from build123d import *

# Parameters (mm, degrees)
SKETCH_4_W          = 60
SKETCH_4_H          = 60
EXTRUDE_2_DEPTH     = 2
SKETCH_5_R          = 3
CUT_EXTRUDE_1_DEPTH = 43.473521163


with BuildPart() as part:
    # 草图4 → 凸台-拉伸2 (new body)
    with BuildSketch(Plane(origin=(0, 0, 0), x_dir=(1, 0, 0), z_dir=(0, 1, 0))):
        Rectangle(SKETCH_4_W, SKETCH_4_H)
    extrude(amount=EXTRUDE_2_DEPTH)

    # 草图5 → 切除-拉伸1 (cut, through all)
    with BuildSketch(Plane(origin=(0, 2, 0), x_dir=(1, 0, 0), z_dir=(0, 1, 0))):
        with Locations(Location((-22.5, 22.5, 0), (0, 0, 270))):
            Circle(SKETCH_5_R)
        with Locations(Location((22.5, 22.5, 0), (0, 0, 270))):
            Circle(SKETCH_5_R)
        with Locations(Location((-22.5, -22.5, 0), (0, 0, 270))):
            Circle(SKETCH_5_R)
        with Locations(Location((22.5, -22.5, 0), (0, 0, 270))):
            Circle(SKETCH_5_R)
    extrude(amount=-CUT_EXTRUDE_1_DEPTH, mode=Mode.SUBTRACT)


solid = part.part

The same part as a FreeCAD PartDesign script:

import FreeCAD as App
import Part
import Sketcher
from FreeCAD import Vector
Q = App.Units.Quantity


def add_polygon(sketch, points):
    """Adds a closed chain of lines whose ends are joined by coincident constraints."""
    first, n = sketch.GeometryCount, len(points)
    for a, b in zip(points, points[1:] + points[:1]):
        sketch.addGeometry(Part.LineSegment(App.Vector(*a, 0), App.Vector(*b, 0)), False)
    for i in range(n):
        sketch.addConstraint(Sketcher.Constraint("Coincident", first + i, 2, first + (i + 1) % n, 1))

doc = App.newDocument("Part")
body = doc.addObject("PartDesign::Body", "Body")

# Sketch on XZ plane
sketch1 = body.newObject("Sketcher::SketchObject", "Sketch")
sketch1.AttachmentSupport = (doc.getObject("XZ_Plane"), [""])
sketch1.MapMode = "FlatFace"
add_polygon(sketch1, [(-30, -30), (-30, 30), (30, 30), (30, -30)])  # lines 0-3
sketch1.addConstraint([
    Sketcher.Constraint("Vertical", 0),
    Sketcher.Constraint("Horizontal", 1),
    Sketcher.Constraint("Vertical", 2),
    Sketcher.Constraint("Horizontal", 3),
    Sketcher.Constraint("Symmetric", 0, 2, 2, 2, -1, 1),
    Sketcher.Constraint("Equal", 3, 0),
    Sketcher.Constraint("DistanceX", 1, 1, 1, 2, Q("60 mm")),
])
pad1 = body.newObject("PartDesign::Pad", "Pad")
pad1.Profile = sketch1
pad1.Length = 2
pad1.Reversed = True

# Sketch on XZ plane
sketch2 = body.newObject("Sketcher::SketchObject", "Sketch001")
sketch2.AttachmentSupport = (doc.getObject("XZ_Plane"), [""])
sketch2.MapMode = "FlatFace"
sketch2.AttachmentOffset = App.Placement(Vector(0, 0, -2), App.Rotation())
sketch2.addGeometry([
    Part.Circle(Vector(-22.5, -22.5, 0), Vector(0, 0, 1), 3),
    Part.Circle(Vector(22.5, -22.5, 0), Vector(0, 0, 1), 3),
    Part.Circle(Vector(-22.5, 22.5, 0), Vector(0, 0, 1), 3),
    Part.Circle(Vector(22.5, 22.5, 0), Vector(0, 0, 1), 3),
], False)
sketch2.addConstraint([
    Sketcher.Constraint("Equal", 0, 1),
    Sketcher.Constraint("Equal", 1, 2),
    Sketcher.Constraint("Equal", 2, 3),
    Sketcher.Constraint("Symmetric", 1, 3, 2, 3, -1, 1),
    Sketcher.Constraint("Symmetric", 0, 3, 3, 3, -1, 1),
    Sketcher.Constraint("Symmetric", 0, 3, 1, 3, -2),
    Sketcher.Constraint("Diameter", 0, Q("6 mm")),
    Sketcher.Constraint("DistanceX", 0, 3, 1, 3, Q("45 mm")),
    Sketcher.Constraint("DistanceY", 0, 3, 2, 3, Q("45 mm")),
])
pocket1 = body.newObject("PartDesign::Pocket", "Pocket")
pocket1.Profile = sketch2
pocket1.Type = "ThroughAll"
pocket1.Reversed = True

doc.recompute()
